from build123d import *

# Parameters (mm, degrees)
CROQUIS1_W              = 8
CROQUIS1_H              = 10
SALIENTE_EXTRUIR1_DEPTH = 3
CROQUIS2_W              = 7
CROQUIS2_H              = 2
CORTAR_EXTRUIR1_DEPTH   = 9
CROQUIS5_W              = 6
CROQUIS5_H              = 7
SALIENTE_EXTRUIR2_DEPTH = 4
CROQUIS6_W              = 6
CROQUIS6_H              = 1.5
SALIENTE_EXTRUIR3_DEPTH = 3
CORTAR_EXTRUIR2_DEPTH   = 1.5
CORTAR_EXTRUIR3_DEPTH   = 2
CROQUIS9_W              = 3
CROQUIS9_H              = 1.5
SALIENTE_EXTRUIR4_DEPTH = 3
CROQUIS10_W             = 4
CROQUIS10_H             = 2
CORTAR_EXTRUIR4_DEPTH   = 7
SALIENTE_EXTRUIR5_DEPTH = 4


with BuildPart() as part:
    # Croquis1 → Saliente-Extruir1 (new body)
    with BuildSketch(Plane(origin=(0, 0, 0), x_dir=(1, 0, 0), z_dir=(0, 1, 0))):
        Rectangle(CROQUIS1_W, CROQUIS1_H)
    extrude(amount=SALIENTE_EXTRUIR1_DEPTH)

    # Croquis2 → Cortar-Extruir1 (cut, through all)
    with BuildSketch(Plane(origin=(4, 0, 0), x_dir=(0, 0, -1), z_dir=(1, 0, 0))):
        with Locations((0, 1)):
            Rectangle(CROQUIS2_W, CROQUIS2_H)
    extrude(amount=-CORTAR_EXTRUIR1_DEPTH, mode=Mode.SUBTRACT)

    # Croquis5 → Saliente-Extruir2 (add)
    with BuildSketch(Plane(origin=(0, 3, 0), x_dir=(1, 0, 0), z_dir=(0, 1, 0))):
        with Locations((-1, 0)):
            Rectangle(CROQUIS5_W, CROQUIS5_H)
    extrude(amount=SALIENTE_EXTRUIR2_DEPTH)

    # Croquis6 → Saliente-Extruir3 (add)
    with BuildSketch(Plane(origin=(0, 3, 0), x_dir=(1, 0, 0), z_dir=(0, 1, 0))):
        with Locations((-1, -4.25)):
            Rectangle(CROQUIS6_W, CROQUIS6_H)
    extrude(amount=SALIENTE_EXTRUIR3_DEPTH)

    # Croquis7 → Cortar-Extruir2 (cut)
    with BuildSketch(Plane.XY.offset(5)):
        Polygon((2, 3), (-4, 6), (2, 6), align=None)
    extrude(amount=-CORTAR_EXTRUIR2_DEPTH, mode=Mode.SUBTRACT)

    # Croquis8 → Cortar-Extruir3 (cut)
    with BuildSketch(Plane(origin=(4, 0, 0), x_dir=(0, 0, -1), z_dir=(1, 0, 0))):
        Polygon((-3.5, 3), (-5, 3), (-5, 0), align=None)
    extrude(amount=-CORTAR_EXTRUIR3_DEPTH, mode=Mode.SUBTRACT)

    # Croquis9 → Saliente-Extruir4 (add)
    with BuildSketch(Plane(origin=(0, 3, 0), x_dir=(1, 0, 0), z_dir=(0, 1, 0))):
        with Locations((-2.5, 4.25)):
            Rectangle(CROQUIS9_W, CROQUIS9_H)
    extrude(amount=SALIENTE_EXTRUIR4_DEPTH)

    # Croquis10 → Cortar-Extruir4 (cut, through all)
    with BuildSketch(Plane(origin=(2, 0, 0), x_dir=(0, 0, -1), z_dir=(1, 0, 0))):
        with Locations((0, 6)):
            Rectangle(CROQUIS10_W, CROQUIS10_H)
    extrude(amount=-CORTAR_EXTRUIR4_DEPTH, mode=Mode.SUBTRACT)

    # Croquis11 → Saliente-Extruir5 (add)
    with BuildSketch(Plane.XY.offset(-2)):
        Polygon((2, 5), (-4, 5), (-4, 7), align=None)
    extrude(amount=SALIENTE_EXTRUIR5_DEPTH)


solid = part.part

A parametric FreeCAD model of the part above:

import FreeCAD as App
import Part
import Sketcher

doc = App.newDocument("Part")
params = doc.addObject("Spreadsheet::Sheet", "Params")
for row, (alias, value) in enumerate([
    ("sketch1_width", "8 mm"),
    ("sketch1_height", "10 mm"),
    ("pad1_length", "3 mm"),
    ("sketch2_width", "2 mm"),
    ("sketch2_height", "7 mm"),
    ("sketch3_width", "6 mm"),
    ("sketch3_height", "7 mm"),
    ("pad2_length", "4 mm"),
    ("sketch4_width", "6 mm"),
    ("sketch4_height", "1.5 mm"),
    ("pad3_length", "3 mm"),
    ("sketch5_width", "6 mm"),
    ("sketch5_height", "3 mm"),
    ("pocket2_length", "1.5 mm"),
    ("sketch6_width", "3 mm"),
    ("sketch6_height", "1.5 mm"),
    ("pocket3_length", "2 mm"),
    ("sketch7_width", "3 mm"),
    ("sketch7_height", "1.5 mm"),
    ("pad4_length", "3 mm"),
    ("sketch8_width", "2 mm"),
    ("sketch8_height", "4 mm"),
    ("sketch9_width", "6 mm"),
    ("sketch9_height", "2 mm"),
    ("pad5_length", "4 mm"),
], start=1):
    params.set(f"A{row}", alias)
    params.set(f"B{row}", "=" + value)
    params.setAlias(f"B{row}", alias)

body = doc.addObject("PartDesign::Body", "Body")

sketch1 = doc.addObject("Sketcher::SketchObject", "Sketch")
body.addObject(sketch1)
sketch1.AttachmentSupport = (doc.XZ_Plane, [""])
sketch1.MapMode = "FlatFace"
sketch1.addGeometry(Part.LineSegment(App.Vector(-4, -5, 0), App.Vector(-4, 5, 0)), False)
sketch1.addGeometry(Part.LineSegment(App.Vector(-4, 5, 0), App.Vector(4, 5, 0)), False)
sketch1.addGeometry(Part.LineSegment(App.Vector(4, 5, 0), App.Vector(4, -5, 0)), False)
sketch1.addGeometry(Part.LineSegment(App.Vector(4, -5, 0), App.Vector(-4, -5, 0)), False)
sketch1.addConstraint(Sketcher.Constraint("Coincident", 0, 2, 1, 1))
sketch1.addConstraint(Sketcher.Constraint("Coincident", 1, 2, 2, 1))
sketch1.addConstraint(Sketcher.Constraint("Coincident", 2, 2, 3, 1))
sketch1.addConstraint(Sketcher.Constraint("Coincident", 3, 2, 0, 1))
sketch1.addConstraint(Sketcher.Constraint("Vertical", 0))
sketch1.addConstraint(Sketcher.Constraint("Horizontal", 1))
sketch1.addConstraint(Sketcher.Constraint("Vertical", 2))
sketch1.addConstraint(Sketcher.Constraint("Horizontal", 3))
sketch1.addConstraint(Sketcher.Constraint("Symmetric", 0, 2, 2, 2, -1, 1))
sketch1.addConstraint(Sketcher.Constraint("DistanceX", 1, 1, 1, 2, 8.0))
sketch1.addConstraint(Sketcher.Constraint("DistanceY", 0, 1, 0, 2, 10.0))
sketch1.setExpression("Constraints[9]", "Params.sketch1_width")
sketch1.setExpression("Constraints[10]", "Params.sketch1_height")
pad1 = doc.addObject("PartDesign::Pad", "Pad")
body.addObject(pad1)
pad1.Profile = sketch1
pad1.setExpression("Length", "Params.pad1_length")
pad1.Reversed = True

sketch2 = doc.addObject("Sketcher::SketchObject", "Sketch001")
body.addObject(sketch2)
sketch2.AttachmentSupport = (doc.YZ_Plane, [""])
sketch2.MapMode = "FlatFace"
sketch2.AttachmentOffset = App.Placement(App.Vector(0, 0, 4), App.Rotation())
sketch2.addGeometry(Part.LineSegment(App.Vector(2, 3.5, 0), App.Vector(0, 3.5, 0)), False)
sketch2.addGeometry(Part.LineSegment(App.Vector(0, 3.5, 0), App.Vector(0, -3.5, 0)), False)
sketch2.addGeometry(Part.LineSegment(App.Vector(0, -3.5, 0), App.Vector(2, -3.5, 0)), False)
sketch2.addGeometry(Part.LineSegment(App.Vector(2, -3.5, 0), App.Vector(2, 3.5, 0)), False)
sketch2.addConstraint(Sketcher.Constraint("Coincident", 0, 2, 1, 1))
sketch2.addConstraint(Sketcher.Constraint("Coincident", 1, 2, 2, 1))
sketch2.addConstraint(Sketcher.Constraint("Coincident", 2, 2, 3, 1))
sketch2.addConstraint(Sketcher.Constraint("Coincident", 3, 2, 0, 1))
sketch2.addConstraint(Sketcher.Constraint("Horizontal", 0))
sketch2.addConstraint(Sketcher.Constraint("Vertical", 1))
sketch2.addConstraint(Sketcher.Constraint("Horizontal", 2))
sketch2.addConstraint(Sketcher.Constraint("Vertical", 3))
sketch2.addConstraint(Sketcher.Constraint("Symmetric", 0, 2, 1, 2, -1, 1))
sketch2.addConstraint(Sketcher.Constraint("DistanceX", 0, 2, 0, 1, 2.0))
sketch2.addConstraint(Sketcher.Constraint("DistanceY", 1, 2, 1, 1, 7.0))
sketch2.setExpression("Constraints[9]", "Params.sketch2_width")
sketch2.setExpression("Constraints[10]", "Params.sketch2_height")
pocket1 = doc.addObject("PartDesign::Pocket", "Pocket")
body.addObject(pocket1)
pocket1.Profile = sketch2
pocket1.Type = "ThroughAll"

sketch3 = doc.addObject("Sketcher::SketchObject", "Sketch002")
body.addObject(sketch3)
sketch3.AttachmentSupport = (doc.XZ_Plane, [""])
sketch3.MapMode = "FlatFace"
sketch3.AttachmentOffset = App.Placement(App.Vector(0, 0, -3), App.Rotation())
sketch3.addGeometry(Part.LineSegment(App.Vector(-4, -4, 0), App.Vector(-4, 4, 0)), False)
sketch3.addGeometry(Part.LineSegment(App.Vector(-4, 4, 0), App.Vector(2, 4, 0)), False)
sketch3.addGeometry(Part.LineSegment(App.Vector(2, 4, 0), App.Vector(2, -4, 0)), False)
sketch3.addGeometry(Part.LineSegment(App.Vector(2, -4, 0), App.Vector(-4, -4, 0)), False)
sketch3.addConstraint(Sketcher.Constraint("Coincident", 0, 2, 1, 1))
sketch3.addConstraint(Sketcher.Constraint("Coincident", 1, 2, 2, 1))
sketch3.addConstraint(Sketcher.Constraint("Coincident", 2, 2, 3, 1))
sketch3.addConstraint(Sketcher.Constraint("Coincident", 3, 2, 0, 1))
sketch3.addConstraint(Sketcher.Constraint("Vertical", 0))
sketch3.addConstraint(Sketcher.Constraint("Horizontal", 1))
sketch3.addConstraint(Sketcher.Constraint("Vertical", 2))
sketch3.addConstraint(Sketcher.Constraint("Horizontal", 3))
sketch3.addConstraint(Sketcher.Constraint("DistanceX", 1, 1, 1, 2, 6.0))
sketch3.addConstraint(Sketcher.Constraint("DistanceY", 0, 1, 0, 2, 7.0))
sketch3.addConstraint(Sketcher.Constraint("DistanceX", 0, 2, -1, 1, 4.0))
sketch3.addConstraint(Sketcher.Constraint("DistanceY", -1, 1, 0, 2, 3.5))
sketch3.setExpression("Constraints[8]", "Params.sketch3_width")
sketch3.setExpression("Constraints[9]", "Params.sketch3_height")
pad2 = doc.addObject("PartDesign::Pad", "Pad001")
body.addObject(pad2)
pad2.Profile = sketch3
pad2.setExpression("Length", "Params.pad2_length")
pad2.Reversed = True

sketch4 = doc.addObject("Sketcher::SketchObject", "Sketch003")
body.addObject(sketch4)
sketch4.AttachmentSupport = (doc.XZ_Plane, [""])
sketch4.MapMode = "FlatFace"
sketch4.AttachmentOffset = App.Placement(App.Vector(0, 0, -3), App.Rotation())
sketch4.addGeometry(Part.LineSegment(App.Vector(-4, 3.5, 0), App.Vector(-4, 5, 0)), False)
sketch4.addGeometry(Part.LineSegment(App.Vector(-4, 5, 0), App.Vector(2, 5, 0)), False)
sketch4.addGeometry(Part.LineSegment(App.Vector(2, 5, 0), App.Vector(2, 3.5, 0)), False)
sketch4.addGeometry(Part.LineSegment(App.Vector(2, 3.5, 0), App.Vector(-4, 3.5, 0)), False)
sketch4.addConstraint(Sketcher.Constraint("Coincident", 0, 2, 1, 1))
sketch4.addConstraint(Sketcher.Constraint("Coincident", 1, 2, 2, 1))
sketch4.addConstraint(Sketcher.Constraint("Coincident", 2, 2, 3, 1))
sketch4.addConstraint(Sketcher.Constraint("Coincident", 3, 2, 0, 1))
sketch4.addConstraint(Sketcher.Constraint("Vertical", 0))
sketch4.addConstraint(Sketcher.Constraint("Horizontal", 1))
sketch4.addConstraint(Sketcher.Constraint("Vertical", 2))
sketch4.addConstraint(Sketcher.Constraint("Horizontal", 3))
sketch4.addConstraint(Sketcher.Constraint("DistanceX", 1, 1, 1, 2, 6.0))
sketch4.addConstraint(Sketcher.Constraint("DistanceY", 0, 1, 0, 2, 1.5))
sketch4.addConstraint(Sketcher.Constraint("DistanceX", 0, 2, -1, 1, 4.0))
sketch4.addConstraint(Sketcher.Constraint("DistanceY", -1, 1, 0, 2, 5.0))
sketch4.setExpression("Constraints[8]", "Params.sketch4_width")
sketch4.setExpression("Constraints[9]", "Params.sketch4_height")
pad3 = doc.addObject("PartDesign::Pad", "Pad002")
body.addObject(pad3)
pad3.Profile = sketch4
pad3.setExpression("Length", "Params.pad3_length")
pad3.Reversed = True

sketch5 = doc.addObject("Sketcher::SketchObject", "Sketch004")
body.addObject(sketch5)
sketch5.AttachmentSupport = (doc.XY_Plane, [""])
sketch5.MapMode = "FlatFace"
sketch5.AttachmentOffset = App.Placement(App.Vector(0, 0, 5), App.Rotation())
sketch5.addGeometry(Part.LineSegment(App.Vector(-4, 6, 0), App.Vector(2, 3, 0)), False)
sketch5.addGeometry(Part.LineSegment(App.Vector(2, 3, 0), App.Vector(2, 6, 0)), False)
sketch5.addGeometry(Part.LineSegment(App.Vector(2, 6, 0), App.Vector(-4, 6, 0)), False)
sketch5.addConstraint(Sketcher.Constraint("Coincident", 0, 2, 1, 1))
sketch5.addConstraint(Sketcher.Constraint("Coincident", 1, 2, 2, 1))
sketch5.addConstraint(Sketcher.Constraint("Coincident", 2, 2, 0, 1))
sketch5.addConstraint(Sketcher.Constraint("Vertical", 1))
sketch5.addConstraint(Sketcher.Constraint("Horizontal", 2))
sketch5.addConstraint(Sketcher.Constraint("DistanceX", 2, 2, 2, 1, 6.0))
sketch5.addConstraint(Sketcher.Constraint("DistanceY", 1, 1, 1, 2, 3.0))
sketch5.addConstraint(Sketcher.Constraint("DistanceX", -1, 1, 0, 2, 2.0))
sketch5.addConstraint(Sketcher.Constraint("DistanceY", -1, 1, 0, 2, 3.0))
sketch5.setExpression("Constraints[5]", "Params.sketch5_width")
sketch5.setExpression("Constraints[6]", "Params.sketch5_height")
pocket2 = doc.addObject("PartDesign::Pocket", "Pocket001")
body.addObject(pocket2)
pocket2.Profile = sketch5
pocket2.setExpression("Length", "Params.pocket2_length")

sketch6 = doc.addObject("Sketcher::SketchObject", "Sketch005")
body.addObject(sketch6)
sketch6.AttachmentSupport = (doc.YZ_Plane, [""])
sketch6.MapMode = "FlatFace"
sketch6.AttachmentOffset = App.Placement(App.Vector(0, 0, 4), App.Rotation())
sketch6.addGeometry(Part.LineSegment(App.Vector(3, 3.5, 0), App.Vector(3, 5, 0)), False)
sketch6.addGeometry(Part.LineSegment(App.Vector(3, 5, 0), App.Vector(0, 5, 0)), False)
sketch6.addGeometry(Part.LineSegment(App.Vector(0, 5, 0), App.Vector(3, 3.5, 0)), False)
sketch6.addConstraint(Sketcher.Constraint("Coincident", 0, 2, 1, 1))
sketch6.addConstraint(Sketcher.Constraint("Coincident", 1, 2, 2, 1))
sketch6.addConstraint(Sketcher.Constraint("Coincident", 2, 2, 0, 1))
sketch6.addConstraint(Sketcher.Constraint("Vertical", 0))
sketch6.addConstraint(Sketcher.Constraint("Horizontal", 1))
sketch6.addConstraint(Sketcher.Constraint("PointOnObject", 1, 2, -2))
sketch6.addConstraint(Sketcher.Constraint("DistanceX", 1, 2, 1, 1, 3.0))
sketch6.addConstraint(Sketcher.Constraint("DistanceY", 0, 1, 0, 2, 1.5))
sketch6.addConstraint(Sketcher.Constraint("DistanceY", -1, 1, 0, 2, 5.0))
sketch6.setExpression("Constraints[6]", "Params.sketch6_width")
sketch6.setExpression("Constraints[7]", "Params.sketch6_height")
pocket3 = doc.addObject("PartDesign::Pocket", "Pocket002")
body.addObject(pocket3)
pocket3.Profile = sketch6
pocket3.setExpression("Length", "Params.pocket3_length")

sketch7 = doc.addObject("Sketcher::SketchObject", "Sketch006")
body.addObject(sketch7)
sketch7.AttachmentSupport = (doc.XZ_Plane, [""])
sketch7.MapMode = "FlatFace"
sketch7.AttachmentOffset = App.Placement(App.Vector(0, 0, -3), App.Rotation())
sketch7.addGeometry(Part.LineSegment(App.Vector(-4, -5, 0), App.Vector(-4, -3.5, 0)), False)
sketch7.addGeometry(Part.LineSegment(App.Vector(-4, -3.5, 0), App.Vector(-1, -3.5, 0)), False)
sketch7.addGeometry(Part.LineSegment(App.Vector(-1, -3.5, 0), App.Vector(-1, -5, 0)), False)
sketch7.addGeometry(Part.LineSegment(App.Vector(-1, -5, 0), App.Vector(-4, -5, 0)), False)
sketch7.addConstraint(Sketcher.Constraint("Coincident", 0, 2, 1, 1))
sketch7.addConstraint(Sketcher.Constraint("Coincident", 1, 2, 2, 1))
sketch7.addConstraint(Sketcher.Constraint("Coincident", 2, 2, 3, 1))
sketch7.addConstraint(Sketcher.Constraint("Coincident", 3, 2, 0, 1))
sketch7.addConstraint(Sketcher.Constraint("Vertical", 0))
sketch7.addConstraint(Sketcher.Constraint("Horizontal", 1))
sketch7.addConstraint(Sketcher.Constraint("Vertical", 2))
sketch7.addConstraint(Sketcher.Constraint("Horizontal", 3))
sketch7.addConstraint(Sketcher.Constraint("DistanceX", 1, 1, 1, 2, 3.0))
sketch7.addConstraint(Sketcher.Constraint("DistanceY", 0, 1, 0, 2, 1.5))
sketch7.addConstraint(Sketcher.Constraint("DistanceX", 0, 2, -1, 1, 4.0))
sketch7.addConstraint(Sketcher.Constraint("DistanceY", 2, 2, -1, 1, 5.0))
sketch7.setExpression("Constraints[8]", "Params.sketch7_width")
sketch7.setExpression("Constraints[9]", "Params.sketch7_height")
pad4 = doc.addObject("PartDesign::Pad", "Pad003")
body.addObject(pad4)
pad4.Profile = sketch7
pad4.setExpression("Length", "Params.pad4_length")
pad4.Reversed = True

sketch8 = doc.addObject("Sketcher::SketchObject", "Sketch007")
body.addObject(sketch8)
sketch8.AttachmentSupport = (doc.YZ_Plane, [""])
sketch8.MapMode = "FlatFace"
sketch8.AttachmentOffset = App.Placement(App.Vector(0, 0, 2), App.Rotation())
sketch8.addGeometry(Part.LineSegment(App.Vector(7, 2, 0), App.Vector(5, 2, 0)), False)
sketch8.addGeometry(Part.LineSegment(App.Vector(5, 2, 0), App.Vector(5, -2, 0)), False)
sketch8.addGeometry(Part.LineSegment(App.Vector(5, -2, 0), App.Vector(7, -2, 0)), False)
sketch8.addGeometry(Part.LineSegment(App.Vector(7, -2, 0), App.Vector(7, 2, 0)), False)
sketch8.addConstraint(Sketcher.Constraint("Coincident", 0, 2, 1, 1))
sketch8.addConstraint(Sketcher.Constraint("Coincident", 1, 2, 2, 1))
sketch8.addConstraint(Sketcher.Constraint("Coincident", 2, 2, 3, 1))
sketch8.addConstraint(Sketcher.Constraint("Coincident", 3, 2, 0, 1))
sketch8.addConstraint(Sketcher.Constraint("Horizontal", 0))
sketch8.addConstraint(Sketcher.Constraint("Vertical", 1))
sketch8.addConstraint(Sketcher.Constraint("Horizontal", 2))
sketch8.addConstraint(Sketcher.Constraint("Vertical", 3))
sketch8.addConstraint(Sketcher.Constraint("DistanceX", 0, 2, 0, 1, 2.0))
sketch8.addConstraint(Sketcher.Constraint("DistanceY", 1, 2, 1, 1, 4.0))
sketch8.addConstraint(Sketcher.Constraint("DistanceX", -1, 1, 0, 2, 5.0))
sketch8.addConstraint(Sketcher.Constraint("DistanceY", -1, 1, 0, 2, 2.0))
sketch8.setExpression("Constraints[8]", "Params.sketch8_width")
sketch8.setExpression("Constraints[9]", "Params.sketch8_height")
pocket4 = doc.addObject("PartDesign::Pocket", "Pocket003")
body.addObject(pocket4)
pocket4.Profile = sketch8
pocket4.Type = "ThroughAll"

sketch9 = doc.addObject("Sketcher::SketchObject", "Sketch008")
body.addObject(sketch9)
sketch9.AttachmentSupport = (doc.XY_Plane, [""])
sketch9.MapMode = "FlatFace"
sketch9.AttachmentOffset = App.Placement(App.Vector(0, 0, -2), App.Rotation())
sketch9.addGeometry(Part.LineSegment(App.Vector(-4, 5, 0), App.Vector(2, 5, 0)), False)
sketch9.addGeometry(Part.LineSegment(App.Vector(2, 5, 0), App.Vector(-4, 7, 0)), False)
sketch9.addGeometry(Part.LineSegment(App.Vector(-4, 7, 0), App.Vector(-4, 5, 0)), False)
sketch9.addConstraint(Sketcher.Constraint("Coincident", 0, 2, 1, 1))
sketch9.addConstraint(Sketcher.Constraint("Coincident", 1, 2, 2, 1))
sketch9.addConstraint(Sketcher.Constraint("Coincident", 2, 2, 0, 1))
sketch9.addConstraint(Sketcher.Constraint("Horizontal", 0))
sketch9.addConstraint(Sketcher.Constraint("Vertical", 2))
sketch9.addConstraint(Sketcher.Constraint("DistanceX", 0, 1, 0, 2, 6.0))
sketch9.addConstraint(Sketcher.Constraint("DistanceY", 2, 2, 2, 1, 2.0))
sketch9.addConstraint(Sketcher.Constraint("DistanceX", -1, 1, 0, 2, 2.0))
sketch9.addConstraint(Sketcher.Constraint("DistanceY", -1, 1, 0, 2, 5.0))
sketch9.setExpression("Constraints[5]", "Params.sketch9_width")
sketch9.setExpression("Constraints[6]", "Params.sketch9_height")
pad5 = doc.addObject("PartDesign::Pad", "Pad004")
body.addObject(pad5)
pad5.Profile = sketch9
pad5.setExpression("Length", "Params.pad5_length")

doc.recompute()
